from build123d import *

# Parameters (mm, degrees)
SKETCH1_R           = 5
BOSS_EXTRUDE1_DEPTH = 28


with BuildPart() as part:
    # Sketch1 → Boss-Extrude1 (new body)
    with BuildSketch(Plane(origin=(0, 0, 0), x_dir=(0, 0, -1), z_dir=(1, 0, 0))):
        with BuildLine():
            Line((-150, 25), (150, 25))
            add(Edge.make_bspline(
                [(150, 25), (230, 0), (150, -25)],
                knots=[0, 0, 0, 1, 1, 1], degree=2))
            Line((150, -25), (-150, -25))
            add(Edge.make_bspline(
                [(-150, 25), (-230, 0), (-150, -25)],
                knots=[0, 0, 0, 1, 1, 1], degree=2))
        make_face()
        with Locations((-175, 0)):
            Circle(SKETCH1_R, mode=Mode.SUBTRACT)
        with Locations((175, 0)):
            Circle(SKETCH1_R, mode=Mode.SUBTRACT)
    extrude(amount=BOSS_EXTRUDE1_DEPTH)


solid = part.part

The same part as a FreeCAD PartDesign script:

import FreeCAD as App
import Part
import Sketcher

doc = App.newDocument("Part")
body = doc.addObject("PartDesign::Body", "Body")

# Sketch on YZ plane
sketch1 = doc.addObject("Sketcher::SketchObject", "Sketch")
body.addObject(sketch1)
sketch1.AttachmentSupport = (doc.YZ_Plane, [""])
sketch1.MapMode = "FlatFace"
sketch1.addGeometry(Part.LineSegment(App.Vector(25, -150, 0), App.Vector(25, 150, 0)), False)
sketch1.addGeometry(Part.BSplineCurve([App.Vector(25, 150, 0), App.Vector(0, 230, 0), App.Vector(-25, 150, 0)], [3, 3], [0, 1], False, 2, [1, 1, 1], False), False)
sketch1.addGeometry(Part.LineSegment(App.Vector(-25, 150, 0), App.Vector(-25, -150, 0)), False)
sketch1.addGeometry(Part.BSplineCurve([App.Vector(25, -150, 0), App.Vector(0, -230, 0), App.Vector(-25, -150, 0)], [3, 3], [0, 1], False, 2, [1, 1, 1], False), False)
sketch1.addGeometry(Part.Circle(App.Vector(0, -175, 0), App.Vector(0, 0, 1), 5), False)
sketch1.addGeometry(Part.Circle(App.Vector(0, 175, 0), App.Vector(0, 0, 1), 5), False)
sketch1.addConstraint(Sketcher.Constraint("Block", 1))
sketch1.addConstraint(Sketcher.Constraint("Block", 3))
sketch1.addConstraint(Sketcher.Constraint("Coincident", 0, 2, 1, 1))
sketch1.addConstraint(Sketcher.Constraint("Coincident", 1, 2, 2, 1))
sketch1.addConstraint(Sketcher.Constraint("Coincident", 2, 2, 3, 2))
sketch1.addConstraint(Sketcher.Constraint("Coincident", 3, 1, 0, 1))
sketch1.addConstraint(Sketcher.Constraint("Equal", 4, 5))
sketch1.addConstraint(Sketcher.Constraint("Symmetric", 4, 3, 5, 3, -1, 1))
sketch1.addConstraint(Sketcher.Constraint("PointOnObject", 4, 3, -2))
sketch1.addConstraint(Sketcher.Constraint("Diameter", 4, 10.0))
sketch1.addConstraint(Sketcher.Constraint("DistanceY", 4, 3, -1, 1, 175.0))
pad1 = doc.addObject("PartDesign::Pad", "Pad")
body.addObject(pad1)
pad1.Profile = sketch1
pad1.Length = 28

doc.recompute()
